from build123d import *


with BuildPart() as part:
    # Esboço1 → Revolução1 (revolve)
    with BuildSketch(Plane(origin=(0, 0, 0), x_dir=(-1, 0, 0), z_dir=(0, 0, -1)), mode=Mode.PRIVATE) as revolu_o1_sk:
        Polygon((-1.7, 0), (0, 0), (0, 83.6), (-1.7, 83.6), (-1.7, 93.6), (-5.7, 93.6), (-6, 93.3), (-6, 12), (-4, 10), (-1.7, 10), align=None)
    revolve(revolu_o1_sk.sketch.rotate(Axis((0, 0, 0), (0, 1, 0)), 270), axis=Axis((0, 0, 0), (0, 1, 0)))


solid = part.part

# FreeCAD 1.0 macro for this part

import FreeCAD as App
import Part
import Sketcher
Q = App.Units.Quantity


def add_polygon(sketch, points):
    """Adds a closed chain of lines whose ends are joined by coincident constraints."""
    first, n = sketch.GeometryCount, len(points)
    for a, b in zip(points, points[1:] + points[:1]):
        sketch.addGeometry(Part.LineSegment(App.Vector(*a, 0), App.Vector(*b, 0)), False)
    for i in range(n):
        sketch.addConstraint(Sketcher.Constraint("Coincident", first + i, 2, first + (i + 1) % n, 1))

doc = App.newDocument("Part")
body = doc.addObject("PartDesign::Body", "Body")

# Sketch on XY plane
sketch1 = body.newObject("Sketcher::SketchObject", "Sketch")
sketch1.AttachmentSupport = (doc.getObject("XY_Plane"), [""])
sketch1.MapMode = "FlatFace"
add_polygon(sketch1, [(1.7, 0), (0, 0), (0, 83.6), (1.7, 83.6), (1.7, 93.6), (5.7, 93.6), (6, 93.3), (6, 12), (4, 10), (1.7, 10)])  # lines 0-9
sketch1.addConstraint([
    Sketcher.Constraint("Horizontal", 0),
    Sketcher.Constraint("Vertical", 1),
    Sketcher.Constraint("Horizontal", 2),
    Sketcher.Constraint("Vertical", 3),
    Sketcher.Constraint("Horizontal", 4),
    Sketcher.Constraint("Vertical", 6),
    Sketcher.Constraint("Horizontal", 8),
    Sketcher.Constraint("Vertical", 9),
    Sketcher.Constraint("Coincident", 0, 2, -1, 1),
    Sketcher.Constraint("Perpendicular", 5, 7),
    Sketcher.Constraint("Vertical", 3, 2, 8, 2),
    Sketcher.Constraint("Equal", 3, 9),
    Sketcher.Constraint("DistanceX", 4, 1, 4, 2, 4.0),
    Sketcher.Constraint("DistanceY", 3, 1, 3, 2, 10.0),
    Sketcher.Constraint("Angle", 5, Q("-45 deg")),
    Sketcher.Constraint("DistanceX", 0, 2, 0, 1, 1.7),
    Sketcher.Constraint("DistanceX", 8, 2, 8, 1, 2.3),
    Sketcher.Constraint("DistanceY", 1, 1, 1, 2, 83.6),
    Sketcher.Constraint("DistanceY", 6, 2, 6, 1, 81.3),
])
revolution = body.newObject("PartDesign::Revolution", "Revolution")
revolution.Profile = sketch1
revolution.ReferenceAxis = (sketch1, ["V_Axis"])
revolution.Angle = 360

doc.recompute()
